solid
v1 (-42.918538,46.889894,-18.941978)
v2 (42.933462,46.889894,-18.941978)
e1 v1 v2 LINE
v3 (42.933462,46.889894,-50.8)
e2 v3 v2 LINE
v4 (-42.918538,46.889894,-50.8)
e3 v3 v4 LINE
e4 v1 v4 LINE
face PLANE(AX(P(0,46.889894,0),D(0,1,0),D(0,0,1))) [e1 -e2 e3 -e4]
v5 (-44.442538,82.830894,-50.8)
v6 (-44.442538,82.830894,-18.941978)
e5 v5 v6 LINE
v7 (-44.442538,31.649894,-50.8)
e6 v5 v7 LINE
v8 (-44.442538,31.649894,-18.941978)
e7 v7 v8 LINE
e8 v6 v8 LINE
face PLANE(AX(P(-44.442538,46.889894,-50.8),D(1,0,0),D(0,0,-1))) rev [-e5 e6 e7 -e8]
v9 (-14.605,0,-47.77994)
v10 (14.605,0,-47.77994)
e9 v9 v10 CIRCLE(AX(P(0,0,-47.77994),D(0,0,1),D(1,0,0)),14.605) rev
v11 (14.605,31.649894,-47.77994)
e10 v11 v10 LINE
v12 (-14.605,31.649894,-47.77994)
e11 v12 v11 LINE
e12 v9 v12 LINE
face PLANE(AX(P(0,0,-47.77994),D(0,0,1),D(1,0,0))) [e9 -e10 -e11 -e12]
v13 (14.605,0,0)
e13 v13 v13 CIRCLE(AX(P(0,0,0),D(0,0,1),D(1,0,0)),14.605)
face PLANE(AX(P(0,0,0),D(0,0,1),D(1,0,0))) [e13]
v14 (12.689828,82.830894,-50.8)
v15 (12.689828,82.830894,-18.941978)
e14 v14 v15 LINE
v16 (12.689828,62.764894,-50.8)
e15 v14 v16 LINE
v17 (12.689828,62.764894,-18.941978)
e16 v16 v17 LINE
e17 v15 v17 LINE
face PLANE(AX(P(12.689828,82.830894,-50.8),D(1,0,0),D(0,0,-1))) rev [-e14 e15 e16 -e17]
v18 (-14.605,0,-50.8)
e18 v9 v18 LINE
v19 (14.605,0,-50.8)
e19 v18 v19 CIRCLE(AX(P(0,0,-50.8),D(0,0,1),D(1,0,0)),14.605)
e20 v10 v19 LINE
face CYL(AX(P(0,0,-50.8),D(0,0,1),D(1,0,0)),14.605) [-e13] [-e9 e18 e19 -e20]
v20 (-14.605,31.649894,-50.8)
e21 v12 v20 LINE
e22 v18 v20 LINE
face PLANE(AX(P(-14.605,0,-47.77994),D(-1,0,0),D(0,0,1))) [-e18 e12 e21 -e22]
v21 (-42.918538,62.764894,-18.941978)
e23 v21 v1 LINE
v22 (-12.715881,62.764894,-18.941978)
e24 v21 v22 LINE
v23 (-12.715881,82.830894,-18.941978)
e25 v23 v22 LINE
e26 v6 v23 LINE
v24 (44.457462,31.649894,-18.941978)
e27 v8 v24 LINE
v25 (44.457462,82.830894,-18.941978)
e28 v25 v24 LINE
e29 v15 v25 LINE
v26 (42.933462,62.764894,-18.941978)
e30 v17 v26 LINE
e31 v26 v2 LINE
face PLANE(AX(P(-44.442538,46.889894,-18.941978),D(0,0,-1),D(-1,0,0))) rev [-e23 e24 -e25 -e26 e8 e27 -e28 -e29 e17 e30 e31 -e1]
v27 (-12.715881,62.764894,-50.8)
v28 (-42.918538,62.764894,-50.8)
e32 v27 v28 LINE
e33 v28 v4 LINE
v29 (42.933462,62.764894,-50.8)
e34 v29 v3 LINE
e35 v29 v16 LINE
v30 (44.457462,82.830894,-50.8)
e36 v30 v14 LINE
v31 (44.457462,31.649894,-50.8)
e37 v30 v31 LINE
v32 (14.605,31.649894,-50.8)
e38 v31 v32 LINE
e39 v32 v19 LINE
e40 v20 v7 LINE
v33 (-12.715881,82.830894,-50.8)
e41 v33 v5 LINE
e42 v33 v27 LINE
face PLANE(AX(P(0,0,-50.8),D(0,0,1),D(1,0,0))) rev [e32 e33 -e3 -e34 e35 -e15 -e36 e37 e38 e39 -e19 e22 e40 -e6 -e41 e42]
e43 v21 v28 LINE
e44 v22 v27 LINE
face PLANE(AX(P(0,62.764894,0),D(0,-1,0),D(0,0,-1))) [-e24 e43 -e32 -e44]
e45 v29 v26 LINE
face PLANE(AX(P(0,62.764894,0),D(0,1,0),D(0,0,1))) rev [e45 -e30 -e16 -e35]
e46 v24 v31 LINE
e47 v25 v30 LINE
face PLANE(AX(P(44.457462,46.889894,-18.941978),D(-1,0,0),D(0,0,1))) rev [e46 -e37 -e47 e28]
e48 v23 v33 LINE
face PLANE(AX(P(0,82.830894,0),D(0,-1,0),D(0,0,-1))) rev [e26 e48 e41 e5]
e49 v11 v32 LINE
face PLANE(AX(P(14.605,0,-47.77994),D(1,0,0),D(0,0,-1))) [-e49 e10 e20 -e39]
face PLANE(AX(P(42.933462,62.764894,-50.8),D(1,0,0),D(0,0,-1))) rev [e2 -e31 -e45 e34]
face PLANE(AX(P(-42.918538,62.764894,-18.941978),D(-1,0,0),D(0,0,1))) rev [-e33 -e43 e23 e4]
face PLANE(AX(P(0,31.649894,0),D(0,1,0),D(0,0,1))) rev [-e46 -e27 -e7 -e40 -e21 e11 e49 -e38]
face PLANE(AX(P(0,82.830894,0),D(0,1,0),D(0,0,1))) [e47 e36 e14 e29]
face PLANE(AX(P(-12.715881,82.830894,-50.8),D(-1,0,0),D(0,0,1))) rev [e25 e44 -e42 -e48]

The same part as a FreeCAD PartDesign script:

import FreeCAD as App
import Part
import Sketcher

V = App.Vector
Q = App.Units.Quantity

doc = App.newDocument("Part")
body = doc.addObject("PartDesign::Body", "Body")

# Sketch on XY plane
sketch1 = body.newObject("Sketcher::SketchObject", "Sketch")
sketch1.AttachmentSupport = (doc.getObject("XY_Plane"), [""])
sketch1.MapMode = "FlatFace"
sketch1.addGeometry(Part.Circle(V(0, 0, 0), V(0, 0, 1), 15), False)
sketch1.addConstraint([
    Sketcher.Constraint("Coincident", 0, 3, -1, 1),
    Sketcher.Constraint("Diameter", 0, Q("1.15 in")),
])
pad1 = body.newObject("PartDesign::Pad", "Pad")
pad1.Profile = sketch1
pad1.Length = Q("2 in")
pad1.Reversed = True

# Sketch on XY plane
sketch2 = body.newObject("Sketcher::SketchObject", "Sketch001")
sketch2.AttachmentSupport = (doc.getObject("XY_Plane"), [""])
sketch2.MapMode = "FlatFace"
sketch2.AttachmentOffset = App.Placement(V(0, 0, -2 * 25.4), App.Rotation())
sketch2.addGeometry([
    Part.LineSegment(V(15, 32, 0), V(15, 0, 0)),
    Part.LineSegment(V(15, 0, 0), V(-15, 0, 0)),
    Part.LineSegment(V(-15, 0, 0), V(-15, 32, 0)),
    Part.LineSegment(V(-15, 32, 0), V(15, 32, 0)),
], False)
sketch2.addConstraint([
    Sketcher.Constraint("Coincident", 0, 2, 1, 1),
    Sketcher.Constraint("Coincident", 1, 2, 2, 1),
    Sketcher.Constraint("Coincident", 2, 2, 3, 1),
    Sketcher.Constraint("Coincident", 3, 2, 0, 1),
    Sketcher.Constraint("Vertical", 0),
    Sketcher.Constraint("Horizontal", 1),
    Sketcher.Constraint("Vertical", 2),
    Sketcher.Constraint("Horizontal", 3),
    Sketcher.Constraint("Symmetric", 0, 2, 1, 2, -1, 1),
    Sketcher.Constraint("DistanceX", 1, 2, 1, 1, Q("1.15 in")),
    Sketcher.Constraint("DistanceY", 0, 2, 0, 1, 31.649894),
])
pad2 = body.newObject("PartDesign::Pad", "Pad001")
pad2.Profile = sketch2
pad2.Length = Q("0.1189 in")

# Sketch on XZ plane
sketch3 = body.newObject("Sketcher::SketchObject", "Sketch002")
sketch3.AttachmentSupport = (doc.getObject("XZ_Plane"), [""])
sketch3.MapMode = "FlatFace"
sketch3.AttachmentOffset = App.Placement(V(0, 0, -31.649894), App.Rotation())
sketch3.addGeometry([
    Part.LineSegment(V(-44, -51, 0), V(-44, -19, 0)),
    Part.LineSegment(V(-44, -19, 0), V(44, -19, 0)),
    Part.LineSegment(V(44, -19, 0), V(44, -51, 0)),
    Part.LineSegment(V(44, -51, 0), V(-44, -51, 0)),
], False)
sketch3.addConstraint([
    Sketcher.Constraint("Coincident", 0, 2, 1, 1),
    Sketcher.Constraint("Coincident", 1, 2, 2, 1),
    Sketcher.Constraint("Coincident", 2, 2, 3, 1),
    Sketcher.Constraint("Coincident", 3, 2, 0, 1),
    Sketcher.Constraint("Vertical", 0),
    Sketcher.Constraint("Horizontal", 1),
    Sketcher.Constraint("Vertical", 2),
    Sketcher.Constraint("Horizontal", 3),
    Sketcher.Constraint("DistanceX", 1, 1, 1, 2, Q("3.5 in")),
    Sketcher.Constraint("DistanceY", 2, 2, -1, 1, Q("2 in")),
    Sketcher.Constraint("DistanceY", 0, 1, 0, 2, 31.858022),
    Sketcher.Constraint("DistanceX", 0, 2, -1, 1, 44.442538),
])
pad3 = body.newObject("PartDesign::Pad", "Pad002")
pad3.Profile = sketch3
pad3.Length = Q("0.6 in")
pad3.Reversed = True

# Sketch on XZ plane
sketch4 = body.newObject("Sketcher::SketchObject", "Sketch003")
sketch4.AttachmentSupport = (doc.getObject("XZ_Plane"), [""])
sketch4.MapMode = "FlatFace"
sketch4.AttachmentOffset = App.Placement(V(0, 0, -46.889894), App.Rotation())
sketch4.addGeometry([
    Part.LineSegment(V(42.9, -50.8, 0), V(42.9, -18.9, 0)),  # 0
    Part.LineSegment(V(42.9, -18.9, 0), V(44.5, -18.9, 0)),  # 1
    Part.LineSegment(V(44.5, -18.9, 0), V(44.5, -50.8, 0)),  # 2
    Part.LineSegment(V(44.5, -50.8, 0), V(42.9, -50.8, 0)),  # 3
    Part.LineSegment(V(-44.4, -50.8, 0), V(-44.4, -18.9, 0)),  # 4
    Part.LineSegment(V(-44.4, -18.9, 0), V(-42.9, -18.9, 0)),  # 5
    Part.LineSegment(V(-42.9, -18.9, 0), V(-42.9, -50.8, 0)),  # 6
    Part.LineSegment(V(-42.9, -50.8, 0), V(-44.4, -50.8, 0)),  # 7
], False)
sketch4.addConstraint([
    Sketcher.Constraint("Coincident", 0, 2, 1, 1),
    Sketcher.Constraint("Coincident", 1, 2, 2, 1),
    Sketcher.Constraint("Coincident", 2, 2, 3, 1),
    Sketcher.Constraint("Coincident", 3, 2, 0, 1),
    Sketcher.Constraint("Coincident", 4, 2, 5, 1),
    Sketcher.Constraint("Coincident", 5, 2, 6, 1),
    Sketcher.Constraint("Coincident", 6, 2, 7, 1),
    Sketcher.Constraint("Coincident", 7, 2, 4, 1),
    Sketcher.Constraint("Vertical", 0),
    Sketcher.Constraint("Horizontal", 1),
    Sketcher.Constraint("Vertical", 2),
    Sketcher.Constraint("Horizontal", 3),
    Sketcher.Constraint("Vertical", 4),
    Sketcher.Constraint("Horizontal", 5),
    Sketcher.Constraint("Vertical", 6),
    Sketcher.Constraint("Horizontal", 7),
    Sketcher.Constraint("Horizontal", 1, 2, 4, 2),
    Sketcher.Constraint("Horizontal", 3, 2, 6, 2),
    Sketcher.Constraint("Equal", 3, 5),
    Sketcher.Constraint("DistanceY", 2, 2, -1, 1, Q("2 in")),
    Sketcher.Constraint("DistanceX", 1, 1, 1, 2, Q("0.06 in")),
    Sketcher.Constraint("DistanceX", 4, 2, 1, 2, Q("3.5 in")),
    Sketcher.Constraint("DistanceY", 0, 1, 0, 2, 31.858022),
    Sketcher.Constraint("DistanceX", -1, 1, 0, 2, 42.933462),
])
pad4 = body.newObject("PartDesign::Pad", "Pad003")
pad4.Profile = sketch4
pad4.Length = Q("0.625 in")
pad4.Reversed = True

# Sketch on XZ plane
sketch5 = body.newObject("Sketcher::SketchObject", "Sketch004")
sketch5.AttachmentSupport = (doc.getObject("XZ_Plane"), [""])
sketch5.MapMode = "FlatFace"
sketch5.AttachmentOffset = App.Placement(V(0, 0, -62.764894), App.Rotation())
sketch5.addGeometry([
    Part.LineSegment(V(-44, -51, 0), V(-44, -19, 0)),  # 0
    Part.LineSegment(V(-44, -19, 0), V(-13, -19, 0)),  # 1
    Part.LineSegment(V(-13, -19, 0), V(-13, -51, 0)),  # 2
    Part.LineSegment(V(-13, -51, 0), V(-44, -51, 0)),  # 3
    Part.LineSegment(V(13, -51, 0), V(13, -19, 0)),  # 4
    Part.LineSegment(V(13, -19, 0), V(44, -19, 0)),  # 5
    Part.LineSegment(V(44, -19, 0), V(44, -51, 0)),  # 6
    Part.LineSegment(V(44, -51, 0), V(13, -51, 0)),  # 7
], False)
sketch5.addConstraint([
    Sketcher.Constraint("Coincident", 0, 2, 1, 1),
    Sketcher.Constraint("Coincident", 1, 2, 2, 1),
    Sketcher.Constraint("Coincident", 2, 2, 3, 1),
    Sketcher.Constraint("Coincident", 3, 2, 0, 1),
    Sketcher.Constraint("Coincident", 4, 2, 5, 1),
    Sketcher.Constraint("Coincident", 5, 2, 6, 1),
    Sketcher.Constraint("Coincident", 6, 2, 7, 1),
    Sketcher.Constraint("Coincident", 7, 2, 4, 1),
    Sketcher.Constraint("Vertical", 0),
    Sketcher.Constraint("Horizontal", 1),
    Sketcher.Constraint("Vertical", 2),
    Sketcher.Constraint("Horizontal", 3),
    Sketcher.Constraint("Vertical", 4),
    Sketcher.Constraint("Horizontal", 5),
    Sketcher.Constraint("Vertical", 6),
    Sketcher.Constraint("Horizontal", 7),
    Sketcher.Constraint("Horizontal", 1, 2, 4, 2),
    Sketcher.Constraint("Horizontal", 3, 2, 6, 2),
    Sketcher.Constraint("DistanceY", 2, 2, -1, 1, Q("2 in")),
    Sketcher.Constraint("DistanceX", 0, 2, 5, 2, Q("3.5 in")),
    Sketcher.Constraint("DistanceX", 1, 1, 1, 2, 31.726657),
    Sketcher.Constraint("DistanceX", 5, 1, 5, 2, 31.767634),
    Sketcher.Constraint("DistanceY", 0, 1, 0, 2, 31.858022),
    Sketcher.Constraint("DistanceX", 0, 2, -1, 1, 44.442538),
])
pad5 = body.newObject("PartDesign::Pad", "Pad004")
pad5.Profile = sketch5
pad5.Length = Q("0.79 in")
pad5.Reversed = True

doc.recompute()
